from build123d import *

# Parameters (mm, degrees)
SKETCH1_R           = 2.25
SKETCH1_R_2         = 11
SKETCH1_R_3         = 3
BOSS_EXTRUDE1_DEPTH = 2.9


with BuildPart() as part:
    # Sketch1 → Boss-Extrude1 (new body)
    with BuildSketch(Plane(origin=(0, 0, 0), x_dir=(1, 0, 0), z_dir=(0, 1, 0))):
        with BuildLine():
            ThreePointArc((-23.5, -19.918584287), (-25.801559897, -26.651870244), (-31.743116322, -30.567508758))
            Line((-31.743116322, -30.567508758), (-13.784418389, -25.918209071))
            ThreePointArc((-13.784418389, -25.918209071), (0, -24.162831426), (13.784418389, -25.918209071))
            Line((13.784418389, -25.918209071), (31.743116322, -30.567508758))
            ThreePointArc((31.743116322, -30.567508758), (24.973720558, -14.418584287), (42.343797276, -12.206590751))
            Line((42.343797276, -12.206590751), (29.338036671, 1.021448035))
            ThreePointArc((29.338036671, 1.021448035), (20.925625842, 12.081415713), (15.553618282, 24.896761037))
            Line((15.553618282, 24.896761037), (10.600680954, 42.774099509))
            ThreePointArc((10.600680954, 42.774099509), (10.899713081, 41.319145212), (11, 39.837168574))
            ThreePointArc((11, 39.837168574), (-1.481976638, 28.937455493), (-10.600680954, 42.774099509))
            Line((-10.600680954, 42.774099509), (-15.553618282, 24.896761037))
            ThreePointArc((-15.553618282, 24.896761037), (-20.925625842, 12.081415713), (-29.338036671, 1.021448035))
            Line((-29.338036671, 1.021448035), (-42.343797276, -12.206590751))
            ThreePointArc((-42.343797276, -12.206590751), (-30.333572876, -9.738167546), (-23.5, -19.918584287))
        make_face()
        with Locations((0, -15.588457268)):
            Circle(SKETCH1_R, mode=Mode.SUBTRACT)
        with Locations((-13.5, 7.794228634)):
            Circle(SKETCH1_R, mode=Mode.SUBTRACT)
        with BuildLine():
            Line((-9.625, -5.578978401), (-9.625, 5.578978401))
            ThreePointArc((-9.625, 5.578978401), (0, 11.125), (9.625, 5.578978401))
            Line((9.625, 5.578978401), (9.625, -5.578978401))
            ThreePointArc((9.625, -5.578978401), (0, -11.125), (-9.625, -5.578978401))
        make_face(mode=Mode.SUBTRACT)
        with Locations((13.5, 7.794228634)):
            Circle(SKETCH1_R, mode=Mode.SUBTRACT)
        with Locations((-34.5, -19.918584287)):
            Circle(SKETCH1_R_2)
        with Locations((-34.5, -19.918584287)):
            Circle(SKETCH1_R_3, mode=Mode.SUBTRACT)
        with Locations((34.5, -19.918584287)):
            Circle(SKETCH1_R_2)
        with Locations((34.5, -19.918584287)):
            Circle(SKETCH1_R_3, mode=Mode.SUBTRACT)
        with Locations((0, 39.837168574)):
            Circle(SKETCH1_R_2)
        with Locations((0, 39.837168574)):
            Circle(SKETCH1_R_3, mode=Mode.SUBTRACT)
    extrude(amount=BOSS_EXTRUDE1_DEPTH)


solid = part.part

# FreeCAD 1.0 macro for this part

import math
import FreeCAD as App
import Part
import Sketcher
Q = App.Units.Quantity

doc = App.newDocument("Part")
body = doc.addObject("PartDesign::Body", "Body")

# Sketch on XZ plane
sketch1 = doc.addObject("Sketcher::SketchObject", "Sketch")
body.addObject(sketch1)
sketch1.AttachmentSupport = (doc.XZ_Plane, [""])
sketch1.MapMode = "FlatFace"
sketch1.addGeometry([
    Part.LineSegment(App.Vector(-31.7, 30.6, 0), App.Vector(-13.8, 25.9, 0)),  # 0
    Part.ArcOfCircle(Part.Circle(App.Vector(0, 79.2, 0), App.Vector(0, 0, 1), 55), math.radians(-105), math.radians(-75)),  # 1
    Part.LineSegment(App.Vector(13.8, 25.9, 0), App.Vector(31.7, 30.6, 0)),  # 2
    Part.ArcOfCircle(Part.Circle(App.Vector(34.5, 19.9, 0), App.Vector(0, 0, 1), 11), math.radians(-45), math.radians(105)),  # 3
    Part.LineSegment(App.Vector(42.3, 12.2, 0), App.Vector(29.3, -1, 0)),  # 4
    Part.ArcOfCircle(Part.Circle(App.Vector(68.6, -39.6, 0), App.Vector(0, 0, 1), 55), math.radians(135), math.radians(165)),  # 5
    Part.LineSegment(App.Vector(15.6, -24.9, 0), App.Vector(10.6, -42.8, 0)),  # 6
    Part.ArcOfCircle(Part.Circle(App.Vector(0, -39.8, 0), App.Vector(0, 0, 1), 11), math.radians(-165), math.radians(-15)),  # 7
    Part.LineSegment(App.Vector(-10.6, -42.8, 0), App.Vector(-15.6, -24.9, 0)),  # 8
    Part.ArcOfCircle(Part.Circle(App.Vector(-68.6, -39.6, 0), App.Vector(0, 0, 1), 55), math.radians(15), math.radians(45)),  # 9
    Part.LineSegment(App.Vector(-29.3, -1, 0), App.Vector(-42.3, 12.2, 0)),  # 10
    Part.ArcOfCircle(Part.Circle(App.Vector(-34.5, 19.9, 0), App.Vector(0, 0, 1), 11), math.radians(75), math.radians(225)),  # 11
    Part.Circle(App.Vector(-34.5, 19.9, 0), App.Vector(0, 0, 1), 3),  # 12
    Part.Circle(App.Vector(-13.5, -7.8, 0), App.Vector(0, 0, 1), 2.2),  # 13
    Part.Circle(App.Vector(0, 15.6, 0), App.Vector(0, 0, 1), 2.2),  # 14
    Part.Circle(App.Vector(34.5, 19.9, 0), App.Vector(0, 0, 1), 3),  # 15
    Part.ArcOfCircle(Part.Circle(App.Vector(0, 0, 0), App.Vector(0, 0, 1), 11.1), math.radians(30), math.radians(150)),  # 16
    Part.LineSegment(App.Vector(-9.6, 5.6, 0), App.Vector(-9.6, -5.6, 0)),  # 17
    Part.ArcOfCircle(Part.Circle(App.Vector(0, 0, 0), App.Vector(0, 0, 1), 11.1), math.radians(-150), math.radians(-30)),  # 18
    Part.LineSegment(App.Vector(9.6, -5.6, 0), App.Vector(9.6, 5.6, 0)),  # 19
    Part.Circle(App.Vector(13.5, -7.8, 0), App.Vector(0, 0, 1), 2.2),  # 20
    Part.Circle(App.Vector(0, -39.8, 0), App.Vector(0, 0, 1), 3),  # 21
], False)
sketch1.addConstraint([
    Sketcher.Constraint("Tangent", 0, 2, 1, 1),
    Sketcher.Constraint("Tangent", 1, 2, 2, 1),
    Sketcher.Constraint("Tangent", 2, 2, 3, 2),
    Sketcher.Constraint("Tangent", 3, 1, 4, 1),
    Sketcher.Constraint("Tangent", 4, 2, 5, 1),
    Sketcher.Constraint("Tangent", 5, 2, 6, 1),
    Sketcher.Constraint("Tangent", 6, 2, 7, 2),
    Sketcher.Constraint("Tangent", 7, 1, 8, 1),
    Sketcher.Constraint("Tangent", 8, 2, 9, 1),
    Sketcher.Constraint("Tangent", 9, 2, 10, 1),
    Sketcher.Constraint("Tangent", 10, 2, 11, 2),
    Sketcher.Constraint("Tangent", 11, 1, 0, 1),
    Sketcher.Constraint("Coincident", 16, 2, 17, 1),
    Sketcher.Constraint("Coincident", 17, 2, 18, 1),
    Sketcher.Constraint("Coincident", 18, 2, 19, 1),
    Sketcher.Constraint("Coincident", 19, 2, 16, 1),
    Sketcher.Constraint("Vertical", 17),
    Sketcher.Constraint("Vertical", 19),
    Sketcher.Constraint("Coincident", 16, 3, -1, 1),
    Sketcher.Constraint("Coincident", 18, 3, -1, 1),
    Sketcher.Constraint("Coincident", 12, 3, 11, 3),
    Sketcher.Constraint("Coincident", 15, 3, 3, 3),
    Sketcher.Constraint("Coincident", 21, 3, 7, 3),
    Sketcher.Constraint("Equal", 1, 5),
    Sketcher.Constraint("Equal", 3, 7),
    Sketcher.Constraint("Equal", 5, 9),
    Sketcher.Constraint("Equal", 7, 11),
    Sketcher.Constraint("Equal", 13, 14),
    Sketcher.Constraint("Equal", 12, 15),
    Sketcher.Constraint("Equal", 16, 18),
    Sketcher.Constraint("Equal", 14, 20),
    Sketcher.Constraint("Equal", 15, 21),
    Sketcher.Constraint("Symmetric", 5, 3, 9, 3, -2),
    Sketcher.Constraint("Symmetric", 3, 3, 11, 3, -2),
    Sketcher.Constraint("Symmetric", 13, 3, 20, 3, -2),
    Sketcher.Constraint("PointOnObject", 1, 3, -2),
    Sketcher.Constraint("PointOnObject", 7, 3, -2),
    Sketcher.Constraint("PointOnObject", 14, 3, -2),
    Sketcher.Constraint("Horizontal", 17, 2, 18, 2),
    Sketcher.Constraint("Equal", 2, 4),
    Sketcher.Constraint("Equal", 4, 6),
    Sketcher.Constraint("Diameter", 12, Q("6 mm")),
    Sketcher.Constraint("Radius", 1, Q("55 mm")),
    Sketcher.Constraint("Radius", 3, Q("11 mm")),
    Sketcher.Constraint("Diameter", 13, Q("4.5 mm")),
    Sketcher.Constraint("Radius", 16, Q("11.125 mm")),
    Sketcher.Constraint("DistanceY", 7, 3, 1, 3, Q("119 mm")),
    Sketcher.Constraint("DistanceX", 11, 3, 3, 3, Q("69 mm")),
    Sketcher.Constraint("DistanceX", 11, 3, 13, 3, Q("21 mm")),
    Sketcher.Constraint("DistanceY", 5, 3, 3, 3, Q("59.5 mm")),
    Sketcher.Constraint("DistanceX", 17, 2, 18, 2, Q("19.25 mm")),
    Sketcher.Constraint("DistanceY", 6, 2, -1, 1, Q("42.7741 mm")),
    Sketcher.Constraint("DistanceY", 13, 3, -1, 1, Q("7.794229 mm")),
    Sketcher.Constraint("DistanceY", 14, 3, 0, 2, Q("10.329752 mm")),
])
pad1 = doc.addObject("PartDesign::Pad", "Pad")
body.addObject(pad1)
pad1.Profile = sketch1
pad1.Length = 2.9
pad1.Reversed = True

doc.recompute()
